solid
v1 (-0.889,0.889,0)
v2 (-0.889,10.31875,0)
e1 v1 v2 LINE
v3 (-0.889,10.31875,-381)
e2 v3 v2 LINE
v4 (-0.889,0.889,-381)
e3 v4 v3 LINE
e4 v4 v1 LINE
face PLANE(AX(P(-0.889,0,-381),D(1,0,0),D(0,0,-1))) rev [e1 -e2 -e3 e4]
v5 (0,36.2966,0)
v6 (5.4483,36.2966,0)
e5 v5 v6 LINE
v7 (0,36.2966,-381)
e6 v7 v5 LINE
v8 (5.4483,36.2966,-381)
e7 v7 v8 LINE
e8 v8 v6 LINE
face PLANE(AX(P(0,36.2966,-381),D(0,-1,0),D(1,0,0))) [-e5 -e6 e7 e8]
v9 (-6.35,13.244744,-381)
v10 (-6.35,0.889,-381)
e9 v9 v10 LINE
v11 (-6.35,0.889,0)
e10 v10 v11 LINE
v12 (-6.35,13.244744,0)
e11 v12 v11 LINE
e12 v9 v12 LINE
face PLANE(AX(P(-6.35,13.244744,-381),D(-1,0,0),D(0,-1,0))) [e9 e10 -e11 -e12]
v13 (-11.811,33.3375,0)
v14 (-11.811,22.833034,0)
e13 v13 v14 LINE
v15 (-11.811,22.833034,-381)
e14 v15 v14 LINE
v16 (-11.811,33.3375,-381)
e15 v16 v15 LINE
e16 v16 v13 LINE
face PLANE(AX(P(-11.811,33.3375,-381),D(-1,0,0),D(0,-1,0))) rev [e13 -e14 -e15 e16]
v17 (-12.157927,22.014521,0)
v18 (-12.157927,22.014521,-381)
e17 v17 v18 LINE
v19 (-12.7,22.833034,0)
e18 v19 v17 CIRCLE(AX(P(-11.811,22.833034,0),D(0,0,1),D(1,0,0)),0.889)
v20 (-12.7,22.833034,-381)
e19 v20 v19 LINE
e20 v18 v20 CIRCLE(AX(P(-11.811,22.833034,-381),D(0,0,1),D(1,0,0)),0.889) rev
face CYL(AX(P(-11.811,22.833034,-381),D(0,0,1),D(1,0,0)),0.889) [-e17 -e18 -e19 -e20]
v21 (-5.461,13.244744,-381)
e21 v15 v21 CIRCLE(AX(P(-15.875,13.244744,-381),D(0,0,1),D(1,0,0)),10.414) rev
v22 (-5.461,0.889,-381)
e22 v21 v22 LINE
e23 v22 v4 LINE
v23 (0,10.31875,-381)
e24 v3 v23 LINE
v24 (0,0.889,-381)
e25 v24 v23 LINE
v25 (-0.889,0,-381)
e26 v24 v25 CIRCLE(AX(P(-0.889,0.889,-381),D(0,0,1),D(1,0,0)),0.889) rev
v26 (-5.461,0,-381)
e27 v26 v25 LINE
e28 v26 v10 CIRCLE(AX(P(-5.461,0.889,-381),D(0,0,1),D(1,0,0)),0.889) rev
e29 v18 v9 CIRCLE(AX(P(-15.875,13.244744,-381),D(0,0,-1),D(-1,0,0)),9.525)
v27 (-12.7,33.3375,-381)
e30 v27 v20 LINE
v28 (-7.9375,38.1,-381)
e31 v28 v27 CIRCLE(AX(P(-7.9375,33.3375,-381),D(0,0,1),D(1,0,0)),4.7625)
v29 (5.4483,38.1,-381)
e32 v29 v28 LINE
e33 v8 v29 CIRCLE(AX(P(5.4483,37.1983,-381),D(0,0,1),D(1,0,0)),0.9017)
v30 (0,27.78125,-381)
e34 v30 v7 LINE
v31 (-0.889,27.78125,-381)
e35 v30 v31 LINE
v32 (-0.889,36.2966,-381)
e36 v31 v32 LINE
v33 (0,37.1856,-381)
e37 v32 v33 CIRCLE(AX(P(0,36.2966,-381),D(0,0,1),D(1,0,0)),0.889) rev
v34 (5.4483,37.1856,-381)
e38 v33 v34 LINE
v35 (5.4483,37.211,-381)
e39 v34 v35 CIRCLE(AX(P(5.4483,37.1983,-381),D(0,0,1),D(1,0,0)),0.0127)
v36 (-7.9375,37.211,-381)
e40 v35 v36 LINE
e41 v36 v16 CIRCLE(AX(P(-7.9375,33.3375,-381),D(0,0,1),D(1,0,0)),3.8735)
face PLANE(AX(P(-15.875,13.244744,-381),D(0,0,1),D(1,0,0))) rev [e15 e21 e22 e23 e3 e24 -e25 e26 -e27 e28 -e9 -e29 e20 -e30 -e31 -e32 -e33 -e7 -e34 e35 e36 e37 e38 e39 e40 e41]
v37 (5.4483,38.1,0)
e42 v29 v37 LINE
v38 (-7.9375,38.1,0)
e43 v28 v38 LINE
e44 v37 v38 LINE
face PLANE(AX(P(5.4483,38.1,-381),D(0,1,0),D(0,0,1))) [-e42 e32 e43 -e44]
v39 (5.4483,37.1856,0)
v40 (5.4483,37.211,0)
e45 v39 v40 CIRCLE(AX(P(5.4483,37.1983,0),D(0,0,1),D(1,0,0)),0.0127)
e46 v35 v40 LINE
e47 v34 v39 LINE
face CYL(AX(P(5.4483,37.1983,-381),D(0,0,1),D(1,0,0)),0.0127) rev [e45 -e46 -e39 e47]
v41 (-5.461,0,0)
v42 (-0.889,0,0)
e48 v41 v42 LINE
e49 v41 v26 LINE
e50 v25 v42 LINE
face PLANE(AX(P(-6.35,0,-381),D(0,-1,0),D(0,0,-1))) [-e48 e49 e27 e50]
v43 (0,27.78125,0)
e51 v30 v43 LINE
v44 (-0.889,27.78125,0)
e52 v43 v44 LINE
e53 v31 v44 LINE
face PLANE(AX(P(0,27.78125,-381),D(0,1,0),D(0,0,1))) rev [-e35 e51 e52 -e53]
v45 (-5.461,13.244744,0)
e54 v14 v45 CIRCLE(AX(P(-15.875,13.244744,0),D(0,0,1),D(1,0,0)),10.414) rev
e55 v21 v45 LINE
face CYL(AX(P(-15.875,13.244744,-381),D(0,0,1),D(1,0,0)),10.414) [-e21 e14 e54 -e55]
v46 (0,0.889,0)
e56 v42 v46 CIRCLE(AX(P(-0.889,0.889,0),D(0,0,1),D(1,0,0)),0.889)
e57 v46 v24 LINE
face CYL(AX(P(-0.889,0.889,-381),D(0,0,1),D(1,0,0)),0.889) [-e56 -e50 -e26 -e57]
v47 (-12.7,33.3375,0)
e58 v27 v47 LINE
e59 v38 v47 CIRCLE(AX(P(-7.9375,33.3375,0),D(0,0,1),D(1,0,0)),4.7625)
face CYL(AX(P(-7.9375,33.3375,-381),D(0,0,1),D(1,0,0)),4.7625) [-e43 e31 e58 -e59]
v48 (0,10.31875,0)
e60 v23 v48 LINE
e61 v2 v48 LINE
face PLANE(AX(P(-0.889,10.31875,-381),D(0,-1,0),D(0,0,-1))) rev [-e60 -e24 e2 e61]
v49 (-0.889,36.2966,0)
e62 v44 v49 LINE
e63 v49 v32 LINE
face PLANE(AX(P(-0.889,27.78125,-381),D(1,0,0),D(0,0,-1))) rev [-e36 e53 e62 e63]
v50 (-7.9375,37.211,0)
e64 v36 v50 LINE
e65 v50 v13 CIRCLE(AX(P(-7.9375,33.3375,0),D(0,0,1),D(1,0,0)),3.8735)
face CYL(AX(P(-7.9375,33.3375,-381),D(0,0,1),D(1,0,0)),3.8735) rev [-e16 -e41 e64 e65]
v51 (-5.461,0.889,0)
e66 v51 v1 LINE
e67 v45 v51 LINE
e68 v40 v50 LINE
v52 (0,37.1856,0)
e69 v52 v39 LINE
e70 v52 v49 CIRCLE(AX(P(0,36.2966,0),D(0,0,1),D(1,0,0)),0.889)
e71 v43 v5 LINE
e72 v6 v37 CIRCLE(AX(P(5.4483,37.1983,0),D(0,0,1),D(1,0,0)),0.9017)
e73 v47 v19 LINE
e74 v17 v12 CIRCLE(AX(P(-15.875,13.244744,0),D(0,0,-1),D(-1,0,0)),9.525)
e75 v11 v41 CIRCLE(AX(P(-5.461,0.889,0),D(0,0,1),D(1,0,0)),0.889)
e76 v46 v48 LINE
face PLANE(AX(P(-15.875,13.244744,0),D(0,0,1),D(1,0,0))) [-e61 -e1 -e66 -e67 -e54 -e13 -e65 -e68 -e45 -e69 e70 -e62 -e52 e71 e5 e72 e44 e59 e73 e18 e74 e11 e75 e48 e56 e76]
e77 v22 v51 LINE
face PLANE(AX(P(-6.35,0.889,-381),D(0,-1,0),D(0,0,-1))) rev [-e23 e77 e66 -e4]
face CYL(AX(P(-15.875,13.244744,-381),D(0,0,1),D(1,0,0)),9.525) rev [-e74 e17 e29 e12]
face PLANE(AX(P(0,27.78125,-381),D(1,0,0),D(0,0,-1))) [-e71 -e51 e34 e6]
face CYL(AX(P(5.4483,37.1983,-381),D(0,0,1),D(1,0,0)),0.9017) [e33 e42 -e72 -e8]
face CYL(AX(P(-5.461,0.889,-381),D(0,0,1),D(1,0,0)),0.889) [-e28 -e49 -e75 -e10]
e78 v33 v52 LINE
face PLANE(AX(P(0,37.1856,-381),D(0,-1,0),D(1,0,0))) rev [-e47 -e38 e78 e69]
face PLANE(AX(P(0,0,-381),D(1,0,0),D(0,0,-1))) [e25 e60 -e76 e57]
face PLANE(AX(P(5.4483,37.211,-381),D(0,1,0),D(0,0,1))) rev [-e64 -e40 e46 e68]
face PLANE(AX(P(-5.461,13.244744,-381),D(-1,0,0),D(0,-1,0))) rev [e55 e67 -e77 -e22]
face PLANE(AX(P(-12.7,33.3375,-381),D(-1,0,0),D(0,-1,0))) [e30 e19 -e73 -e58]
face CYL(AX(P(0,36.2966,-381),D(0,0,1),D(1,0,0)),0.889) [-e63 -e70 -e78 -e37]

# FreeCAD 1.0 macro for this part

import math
import FreeCAD as App
import Part
import Sketcher
from FreeCAD import Vector
Q = App.Units.Quantity


def edges_at(feature, points):
    """Names of the edges that pass closest to the given points."""
    edges = feature.Shape.Edges
    near = lambda p: min(range(len(edges)), key=lambda i: edges[i].distToShape(Part.Vertex(*p))[0])
    return sorted({f"Edge{near(p) + 1}" for p in points})

doc = App.newDocument("Part")
body = doc.addObject("PartDesign::Body", "Body")

sketch1 = body.newObject("Sketcher::SketchObject", "Sketch")
sketch1.AttachmentSupport = (doc.getObject("XY_Plane"), [""])
sketch1.MapMode = "FlatFace"
sketch1.addGeometry([
    Part.LineSegment(Vector(0, 27.781, 0), Vector(0, 36.297, 0)),
    Part.LineSegment(Vector(0, 36.297, 0), Vector(5.448, 36.297, 0)),
    Part.ArcOfCircle(Part.Circle(Vector(5.448, 37.198, 0), Vector(0, 0, 1), 0.902), math.radians(-90), math.radians(90)),
    Part.LineSegment(Vector(5.448, 38.1, 0), Vector(-7.938, 38.1, 0)),
    Part.ArcOfCircle(Part.Circle(Vector(-7.937, 33.337, 0), Vector(0, 0, 1), 4.763), math.radians(90), math.radians(180)),
    Part.LineSegment(Vector(-12.7, 33.337, 0), Vector(-12.7, 22.225, 0)),
    Part.ArcOfCircle(Part.Circle(Vector(-15.875, 13.245, 0), Vector(0, 0, 1), 9.525), math.radians(0), math.radians(71)),
    Part.LineSegment(Vector(-6.35, 13.245, 0), Vector(-6.35, 0, 0)),
    Part.LineSegment(Vector(-6.35, 0, 0), Vector(0, 0, 0)),
    Part.LineSegment(Vector(0, 0, 0), Vector(0, 10.319, 0)),
    Part.LineSegment(Vector(0, 10.319, 0), Vector(-0.889, 10.319, 0)),
    Part.LineSegment(Vector(-0.889, 10.319, 0), Vector(-0.889, 0.889, 0)),
    Part.LineSegment(Vector(-0.889, 0.889, 0), Vector(-5.461, 0.889, 0)),
    Part.LineSegment(Vector(-5.461, 0.889, 0), Vector(-5.461, 13.245, 0)),
    Part.ArcOfCircle(Part.Circle(Vector(-15.875, 13.245, 0), Vector(0, 0, 1), 10.414), math.radians(0), math.radians(67)),
    Part.LineSegment(Vector(-11.811, 22.833, 0), Vector(-11.811, 33.337, 0)),
    Part.ArcOfCircle(Part.Circle(Vector(-7.938, 33.337, 0), Vector(0, 0, 1), 3.873), math.radians(90), math.radians(180)),
    Part.LineSegment(Vector(-7.938, 37.211, 0), Vector(5.448, 37.211, 0)),
    Part.ArcOfCircle(Part.Circle(Vector(5.448, 37.198, 0), Vector(0, 0, 1), 0.013), math.radians(-90), math.radians(90)),
    Part.LineSegment(Vector(5.448, 37.186, 0), Vector(-0.889, 37.186, 0)),
    Part.LineSegment(Vector(-0.889, 37.186, 0), Vector(-0.889, 27.781, 0)),
    Part.LineSegment(Vector(-0.889, 27.781, 0), Vector(0, 27.781, 0)),
], False)
sketch1.addConstraint([
    Sketcher.Constraint("Coincident", 0, 2, 1, 1),
    Sketcher.Constraint("Tangent", 1, 2, 2, 1),
    Sketcher.Constraint("Tangent", 2, 2, 3, 1),
    Sketcher.Constraint("Tangent", 3, 2, 4, 1),
    Sketcher.Constraint("Tangent", 4, 2, 5, 1),
    Sketcher.Constraint("Coincident", 5, 2, 6, 2),
    Sketcher.Constraint("Tangent", 6, 1, 7, 1),
    Sketcher.Constraint("Coincident", 7, 2, 8, 1),
    Sketcher.Constraint("Coincident", 8, 2, 9, 1),
    Sketcher.Constraint("Coincident", 9, 2, 10, 1),
    Sketcher.Constraint("Coincident", 10, 2, 11, 1),
    Sketcher.Constraint("Coincident", 11, 2, 12, 1),
    Sketcher.Constraint("Coincident", 12, 2, 13, 1),
    Sketcher.Constraint("Tangent", 13, 2, 14, 1),
    Sketcher.Constraint("Coincident", 14, 2, 15, 1),
    Sketcher.Constraint("Tangent", 15, 2, 16, 2),
    Sketcher.Constraint("Tangent", 16, 1, 17, 1),
    Sketcher.Constraint("Tangent", 17, 2, 18, 2),
    Sketcher.Constraint("Tangent", 18, 1, 19, 1),
    Sketcher.Constraint("Coincident", 19, 2, 20, 1),
    Sketcher.Constraint("Coincident", 20, 2, 21, 1),
    Sketcher.Constraint("Coincident", 21, 2, 0, 1),
    Sketcher.Constraint("Vertical", 0),
    Sketcher.Constraint("Horizontal", 1),
    Sketcher.Constraint("Horizontal", 3),
    Sketcher.Constraint("Vertical", 5),
    Sketcher.Constraint("Vertical", 7),
    Sketcher.Constraint("Horizontal", 8),
    Sketcher.Constraint("Vertical", 9),
    Sketcher.Constraint("Horizontal", 10),
    Sketcher.Constraint("Vertical", 11),
    Sketcher.Constraint("Horizontal", 12),
    Sketcher.Constraint("Vertical", 13),
    Sketcher.Constraint("Vertical", 15),
    Sketcher.Constraint("Horizontal", 17),
    Sketcher.Constraint("Horizontal", 19),
    Sketcher.Constraint("Vertical", 20),
    Sketcher.Constraint("Horizontal", 21),
    Sketcher.Constraint("Coincident", 8, 2, -1, 1),
    Sketcher.Constraint("Coincident", 14, 3, 6, 3),
    Sketcher.Constraint("Coincident", 16, 3, 4, 3),
    Sketcher.Constraint("Coincident", 18, 3, 2, 3),
    Sketcher.Constraint("PointOnObject", 0, 2, -2),
    Sketcher.Constraint("Vertical", 11, 2, 19, 2),
    Sketcher.Constraint("Radius", 14, Q("0.41 in")),
    Sketcher.Constraint("Radius", 4, Q("0.1875 in")),
    Sketcher.Constraint("Radius", 6, Q("0.375 in")),
    Sketcher.Constraint("DistanceX", 8, 1, 8, 2, Q("0.25 in")),
    Sketcher.Constraint("DistanceX", 12, 2, 12, 1, Q("0.18 in")),
    Sketcher.Constraint("DistanceY", -1, 1, 2, 2, Q("1.5 in")),
    Sketcher.Constraint("DistanceX", 4, 2, -1, 1, Q("0.5 in")),
    Sketcher.Constraint("Radius", 2, Q("0.0355 in")),
    Sketcher.Constraint("Radius", 16, Q("0.1525 in")),
    Sketcher.Constraint("DistanceX", 3, 2, 3, 1, Q("0.527 in")),
    Sketcher.Constraint("DistanceY", 5, 2, 5, 1, Q("0.4375 in")),
    Sketcher.Constraint("DistanceY", 9, 1, 9, 2, Q("0.40625 in")),
    Sketcher.Constraint("DistanceY", -1, 1, 11, 2, Q("0.035 in")),
    Sketcher.Constraint("DistanceY", -1, 1, 20, 2, Q("1.09375 in")),
])
pad1 = body.newObject("PartDesign::Pad", "Pad")
pad1.Profile = sketch1
pad1.Length = Q("15 in")
pad1.Reversed = True
doc.recompute()

fillet = body.newObject("PartDesign::Fillet", "Fillet")
fillet.Base = (pad1, edges_at(pad1, [
    (0, 0, -190.5),
    (-6.35, 0, -190.5),
    (-12.7, 22.225, -190.5),
    (-0.889, 37.186, -190.5),
]))
fillet.Radius = Q("0.035 in")

doc.recompute()
